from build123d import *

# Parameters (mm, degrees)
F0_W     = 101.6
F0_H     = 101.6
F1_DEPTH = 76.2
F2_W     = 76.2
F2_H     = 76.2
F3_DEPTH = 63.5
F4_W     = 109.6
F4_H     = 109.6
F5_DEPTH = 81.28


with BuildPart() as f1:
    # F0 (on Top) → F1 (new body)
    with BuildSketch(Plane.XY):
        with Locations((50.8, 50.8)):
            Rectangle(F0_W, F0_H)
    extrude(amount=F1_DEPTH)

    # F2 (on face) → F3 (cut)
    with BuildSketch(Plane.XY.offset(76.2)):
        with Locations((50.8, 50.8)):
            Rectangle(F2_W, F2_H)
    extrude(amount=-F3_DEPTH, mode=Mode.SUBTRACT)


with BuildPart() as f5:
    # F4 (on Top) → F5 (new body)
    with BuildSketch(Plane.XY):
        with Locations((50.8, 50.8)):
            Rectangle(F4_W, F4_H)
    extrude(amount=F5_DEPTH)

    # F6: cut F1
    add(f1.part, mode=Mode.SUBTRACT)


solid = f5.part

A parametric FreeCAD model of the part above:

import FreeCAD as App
import Part
import Sketcher
Q = App.Units.Quantity

doc = App.newDocument("Part")
params = doc.addObject("Spreadsheet::Sheet", "Params")
for row, (alias, value) in enumerate([
    ("sketch1_width", "4 in"),
    ("pad1_length", "3 in"),
    ("sketch2_width", "3 in"),
    ("pocket1_length", "2.5 in"),
    ("pad2_length", "3.2 in"),
], start=1):
    params.set(f"A{row}", alias)
    params.set(f"B{row}", "=" + value)
    params.setAlias(f"B{row}", alias)

body = doc.addObject("PartDesign::Body", "Body")

sketch1 = doc.addObject("Sketcher::SketchObject", "Sketch")
body.addObject(sketch1)
sketch1.AttachmentSupport = (doc.XY_Plane, [""])
sketch1.MapMode = "FlatFace"
sketch1.addGeometry([
    Part.LineSegment(App.Vector(0, 102, 0), App.Vector(0, 0, 0)),
    Part.LineSegment(App.Vector(0, 0, 0), App.Vector(102, 0, 0)),
    Part.LineSegment(App.Vector(102, 0, 0), App.Vector(102, 102, 0)),
    Part.LineSegment(App.Vector(102, 102, 0), App.Vector(0, 102, 0)),
], False)
sketch1.addConstraint([
    Sketcher.Constraint("Coincident", 0, 2, 1, 1),
    Sketcher.Constraint("Coincident", 1, 2, 2, 1),
    Sketcher.Constraint("Coincident", 2, 2, 3, 1),
    Sketcher.Constraint("Coincident", 3, 2, 0, 1),
    Sketcher.Constraint("Vertical", 0),
    Sketcher.Constraint("Horizontal", 1),
    Sketcher.Constraint("Vertical", 2),
    Sketcher.Constraint("Horizontal", 3),
    Sketcher.Constraint("Coincident", 0, 2, -1, 1),
    Sketcher.Constraint("Equal", 3, 0),
    Sketcher.Constraint("DistanceX", 1, 1, 1, 2, Q("4 in")),
])
sketch1.setExpression("Constraints[10]", "Params.sketch1_width")
pad1 = doc.addObject("PartDesign::Pad", "Pad")
body.addObject(pad1)
pad1.Profile = sketch1
pad1.setExpression("Length", "Params.pad1_length")

sketch2 = doc.addObject("Sketcher::SketchObject", "Sketch001")
body.addObject(sketch2)
sketch2.AttachmentSupport = (doc.XY_Plane, [""])
sketch2.MapMode = "FlatFace"
sketch2.AttachmentOffset = App.Placement(App.Vector(0, 0, 3 * 25.4), App.Rotation())
sketch2.addGeometry([
    Part.LineSegment(App.Vector(13, 89, 0), App.Vector(13, 13, 0)),
    Part.LineSegment(App.Vector(13, 13, 0), App.Vector(89, 13, 0)),
    Part.LineSegment(App.Vector(89, 13, 0), App.Vector(89, 89, 0)),
    Part.LineSegment(App.Vector(89, 89, 0), App.Vector(13, 89, 0)),
], False)
sketch2.addConstraint([
    Sketcher.Constraint("Coincident", 0, 2, 1, 1),
    Sketcher.Constraint("Coincident", 1, 2, 2, 1),
    Sketcher.Constraint("Coincident", 2, 2, 3, 1),
    Sketcher.Constraint("Coincident", 3, 2, 0, 1),
    Sketcher.Constraint("Vertical", 0),
    Sketcher.Constraint("Horizontal", 1),
    Sketcher.Constraint("Vertical", 2),
    Sketcher.Constraint("Horizontal", 3),
    Sketcher.Constraint("Equal", 3, 0),
    Sketcher.Constraint("DistanceX", 1, 1, 1, 2, Q("3 in")),
    Sketcher.Constraint("DistanceX", -1, 1, 0, 2, Q("0.5 in")),
    Sketcher.Constraint("DistanceY", -1, 1, 0, 2, Q("0.5 in")),
])
sketch2.setExpression("Constraints[9]", "Params.sketch2_width")
pocket1 = doc.addObject("PartDesign::Pocket", "Pocket")
body.addObject(pocket1)
pocket1.Profile = sketch2
pocket1.setExpression("Length", "Params.pocket1_length")
body2 = doc.addObject("PartDesign::Body", "Body001")

sketch3 = doc.addObject("Sketcher::SketchObject", "Sketch002")
body2.addObject(sketch3)
sketch3.AttachmentSupport = (doc.getObject("XY_Plane001"), [""])
sketch3.MapMode = "FlatFace"
sketch3.addGeometry([
    Part.LineSegment(App.Vector(-4, 106, 0), App.Vector(-4, -4, 0)),
    Part.LineSegment(App.Vector(-4, -4, 0), App.Vector(106, -4, 0)),
    Part.LineSegment(App.Vector(106, -4, 0), App.Vector(106, 106, 0)),
    Part.LineSegment(App.Vector(106, 106, 0), App.Vector(-4, 106, 0)),
], False)
sketch3.addConstraint([
    Sketcher.Constraint("Coincident", 0, 2, 1, 1),
    Sketcher.Constraint("Coincident", 1, 2, 2, 1),
    Sketcher.Constraint("Coincident", 2, 2, 3, 1),
    Sketcher.Constraint("Coincident", 3, 2, 0, 1),
    Sketcher.Constraint("Vertical", 0),
    Sketcher.Constraint("Horizontal", 1),
    Sketcher.Constraint("Vertical", 2),
    Sketcher.Constraint("Horizontal", 3),
    Sketcher.Constraint("Equal", 3, 0),
    Sketcher.Constraint("DistanceX", 1, 1, 1, 2, 109.6),
    Sketcher.Constraint("DistanceX", 0, 2, -1, 1, 4.0),
    Sketcher.Constraint("DistanceY", 0, 2, -1, 1, 4.0),
])
pad2 = doc.addObject("PartDesign::Pad", "Pad001")
body2.addObject(pad2)
pad2.Profile = sketch3
pad2.setExpression("Length", "Params.pad2_length")
doc.recompute()

boolean = doc.addObject("PartDesign::Boolean", "Boolean")
body2.addObject(boolean)
boolean.Type = "Cut"
boolean.addObjects([body])

doc.recompute()
